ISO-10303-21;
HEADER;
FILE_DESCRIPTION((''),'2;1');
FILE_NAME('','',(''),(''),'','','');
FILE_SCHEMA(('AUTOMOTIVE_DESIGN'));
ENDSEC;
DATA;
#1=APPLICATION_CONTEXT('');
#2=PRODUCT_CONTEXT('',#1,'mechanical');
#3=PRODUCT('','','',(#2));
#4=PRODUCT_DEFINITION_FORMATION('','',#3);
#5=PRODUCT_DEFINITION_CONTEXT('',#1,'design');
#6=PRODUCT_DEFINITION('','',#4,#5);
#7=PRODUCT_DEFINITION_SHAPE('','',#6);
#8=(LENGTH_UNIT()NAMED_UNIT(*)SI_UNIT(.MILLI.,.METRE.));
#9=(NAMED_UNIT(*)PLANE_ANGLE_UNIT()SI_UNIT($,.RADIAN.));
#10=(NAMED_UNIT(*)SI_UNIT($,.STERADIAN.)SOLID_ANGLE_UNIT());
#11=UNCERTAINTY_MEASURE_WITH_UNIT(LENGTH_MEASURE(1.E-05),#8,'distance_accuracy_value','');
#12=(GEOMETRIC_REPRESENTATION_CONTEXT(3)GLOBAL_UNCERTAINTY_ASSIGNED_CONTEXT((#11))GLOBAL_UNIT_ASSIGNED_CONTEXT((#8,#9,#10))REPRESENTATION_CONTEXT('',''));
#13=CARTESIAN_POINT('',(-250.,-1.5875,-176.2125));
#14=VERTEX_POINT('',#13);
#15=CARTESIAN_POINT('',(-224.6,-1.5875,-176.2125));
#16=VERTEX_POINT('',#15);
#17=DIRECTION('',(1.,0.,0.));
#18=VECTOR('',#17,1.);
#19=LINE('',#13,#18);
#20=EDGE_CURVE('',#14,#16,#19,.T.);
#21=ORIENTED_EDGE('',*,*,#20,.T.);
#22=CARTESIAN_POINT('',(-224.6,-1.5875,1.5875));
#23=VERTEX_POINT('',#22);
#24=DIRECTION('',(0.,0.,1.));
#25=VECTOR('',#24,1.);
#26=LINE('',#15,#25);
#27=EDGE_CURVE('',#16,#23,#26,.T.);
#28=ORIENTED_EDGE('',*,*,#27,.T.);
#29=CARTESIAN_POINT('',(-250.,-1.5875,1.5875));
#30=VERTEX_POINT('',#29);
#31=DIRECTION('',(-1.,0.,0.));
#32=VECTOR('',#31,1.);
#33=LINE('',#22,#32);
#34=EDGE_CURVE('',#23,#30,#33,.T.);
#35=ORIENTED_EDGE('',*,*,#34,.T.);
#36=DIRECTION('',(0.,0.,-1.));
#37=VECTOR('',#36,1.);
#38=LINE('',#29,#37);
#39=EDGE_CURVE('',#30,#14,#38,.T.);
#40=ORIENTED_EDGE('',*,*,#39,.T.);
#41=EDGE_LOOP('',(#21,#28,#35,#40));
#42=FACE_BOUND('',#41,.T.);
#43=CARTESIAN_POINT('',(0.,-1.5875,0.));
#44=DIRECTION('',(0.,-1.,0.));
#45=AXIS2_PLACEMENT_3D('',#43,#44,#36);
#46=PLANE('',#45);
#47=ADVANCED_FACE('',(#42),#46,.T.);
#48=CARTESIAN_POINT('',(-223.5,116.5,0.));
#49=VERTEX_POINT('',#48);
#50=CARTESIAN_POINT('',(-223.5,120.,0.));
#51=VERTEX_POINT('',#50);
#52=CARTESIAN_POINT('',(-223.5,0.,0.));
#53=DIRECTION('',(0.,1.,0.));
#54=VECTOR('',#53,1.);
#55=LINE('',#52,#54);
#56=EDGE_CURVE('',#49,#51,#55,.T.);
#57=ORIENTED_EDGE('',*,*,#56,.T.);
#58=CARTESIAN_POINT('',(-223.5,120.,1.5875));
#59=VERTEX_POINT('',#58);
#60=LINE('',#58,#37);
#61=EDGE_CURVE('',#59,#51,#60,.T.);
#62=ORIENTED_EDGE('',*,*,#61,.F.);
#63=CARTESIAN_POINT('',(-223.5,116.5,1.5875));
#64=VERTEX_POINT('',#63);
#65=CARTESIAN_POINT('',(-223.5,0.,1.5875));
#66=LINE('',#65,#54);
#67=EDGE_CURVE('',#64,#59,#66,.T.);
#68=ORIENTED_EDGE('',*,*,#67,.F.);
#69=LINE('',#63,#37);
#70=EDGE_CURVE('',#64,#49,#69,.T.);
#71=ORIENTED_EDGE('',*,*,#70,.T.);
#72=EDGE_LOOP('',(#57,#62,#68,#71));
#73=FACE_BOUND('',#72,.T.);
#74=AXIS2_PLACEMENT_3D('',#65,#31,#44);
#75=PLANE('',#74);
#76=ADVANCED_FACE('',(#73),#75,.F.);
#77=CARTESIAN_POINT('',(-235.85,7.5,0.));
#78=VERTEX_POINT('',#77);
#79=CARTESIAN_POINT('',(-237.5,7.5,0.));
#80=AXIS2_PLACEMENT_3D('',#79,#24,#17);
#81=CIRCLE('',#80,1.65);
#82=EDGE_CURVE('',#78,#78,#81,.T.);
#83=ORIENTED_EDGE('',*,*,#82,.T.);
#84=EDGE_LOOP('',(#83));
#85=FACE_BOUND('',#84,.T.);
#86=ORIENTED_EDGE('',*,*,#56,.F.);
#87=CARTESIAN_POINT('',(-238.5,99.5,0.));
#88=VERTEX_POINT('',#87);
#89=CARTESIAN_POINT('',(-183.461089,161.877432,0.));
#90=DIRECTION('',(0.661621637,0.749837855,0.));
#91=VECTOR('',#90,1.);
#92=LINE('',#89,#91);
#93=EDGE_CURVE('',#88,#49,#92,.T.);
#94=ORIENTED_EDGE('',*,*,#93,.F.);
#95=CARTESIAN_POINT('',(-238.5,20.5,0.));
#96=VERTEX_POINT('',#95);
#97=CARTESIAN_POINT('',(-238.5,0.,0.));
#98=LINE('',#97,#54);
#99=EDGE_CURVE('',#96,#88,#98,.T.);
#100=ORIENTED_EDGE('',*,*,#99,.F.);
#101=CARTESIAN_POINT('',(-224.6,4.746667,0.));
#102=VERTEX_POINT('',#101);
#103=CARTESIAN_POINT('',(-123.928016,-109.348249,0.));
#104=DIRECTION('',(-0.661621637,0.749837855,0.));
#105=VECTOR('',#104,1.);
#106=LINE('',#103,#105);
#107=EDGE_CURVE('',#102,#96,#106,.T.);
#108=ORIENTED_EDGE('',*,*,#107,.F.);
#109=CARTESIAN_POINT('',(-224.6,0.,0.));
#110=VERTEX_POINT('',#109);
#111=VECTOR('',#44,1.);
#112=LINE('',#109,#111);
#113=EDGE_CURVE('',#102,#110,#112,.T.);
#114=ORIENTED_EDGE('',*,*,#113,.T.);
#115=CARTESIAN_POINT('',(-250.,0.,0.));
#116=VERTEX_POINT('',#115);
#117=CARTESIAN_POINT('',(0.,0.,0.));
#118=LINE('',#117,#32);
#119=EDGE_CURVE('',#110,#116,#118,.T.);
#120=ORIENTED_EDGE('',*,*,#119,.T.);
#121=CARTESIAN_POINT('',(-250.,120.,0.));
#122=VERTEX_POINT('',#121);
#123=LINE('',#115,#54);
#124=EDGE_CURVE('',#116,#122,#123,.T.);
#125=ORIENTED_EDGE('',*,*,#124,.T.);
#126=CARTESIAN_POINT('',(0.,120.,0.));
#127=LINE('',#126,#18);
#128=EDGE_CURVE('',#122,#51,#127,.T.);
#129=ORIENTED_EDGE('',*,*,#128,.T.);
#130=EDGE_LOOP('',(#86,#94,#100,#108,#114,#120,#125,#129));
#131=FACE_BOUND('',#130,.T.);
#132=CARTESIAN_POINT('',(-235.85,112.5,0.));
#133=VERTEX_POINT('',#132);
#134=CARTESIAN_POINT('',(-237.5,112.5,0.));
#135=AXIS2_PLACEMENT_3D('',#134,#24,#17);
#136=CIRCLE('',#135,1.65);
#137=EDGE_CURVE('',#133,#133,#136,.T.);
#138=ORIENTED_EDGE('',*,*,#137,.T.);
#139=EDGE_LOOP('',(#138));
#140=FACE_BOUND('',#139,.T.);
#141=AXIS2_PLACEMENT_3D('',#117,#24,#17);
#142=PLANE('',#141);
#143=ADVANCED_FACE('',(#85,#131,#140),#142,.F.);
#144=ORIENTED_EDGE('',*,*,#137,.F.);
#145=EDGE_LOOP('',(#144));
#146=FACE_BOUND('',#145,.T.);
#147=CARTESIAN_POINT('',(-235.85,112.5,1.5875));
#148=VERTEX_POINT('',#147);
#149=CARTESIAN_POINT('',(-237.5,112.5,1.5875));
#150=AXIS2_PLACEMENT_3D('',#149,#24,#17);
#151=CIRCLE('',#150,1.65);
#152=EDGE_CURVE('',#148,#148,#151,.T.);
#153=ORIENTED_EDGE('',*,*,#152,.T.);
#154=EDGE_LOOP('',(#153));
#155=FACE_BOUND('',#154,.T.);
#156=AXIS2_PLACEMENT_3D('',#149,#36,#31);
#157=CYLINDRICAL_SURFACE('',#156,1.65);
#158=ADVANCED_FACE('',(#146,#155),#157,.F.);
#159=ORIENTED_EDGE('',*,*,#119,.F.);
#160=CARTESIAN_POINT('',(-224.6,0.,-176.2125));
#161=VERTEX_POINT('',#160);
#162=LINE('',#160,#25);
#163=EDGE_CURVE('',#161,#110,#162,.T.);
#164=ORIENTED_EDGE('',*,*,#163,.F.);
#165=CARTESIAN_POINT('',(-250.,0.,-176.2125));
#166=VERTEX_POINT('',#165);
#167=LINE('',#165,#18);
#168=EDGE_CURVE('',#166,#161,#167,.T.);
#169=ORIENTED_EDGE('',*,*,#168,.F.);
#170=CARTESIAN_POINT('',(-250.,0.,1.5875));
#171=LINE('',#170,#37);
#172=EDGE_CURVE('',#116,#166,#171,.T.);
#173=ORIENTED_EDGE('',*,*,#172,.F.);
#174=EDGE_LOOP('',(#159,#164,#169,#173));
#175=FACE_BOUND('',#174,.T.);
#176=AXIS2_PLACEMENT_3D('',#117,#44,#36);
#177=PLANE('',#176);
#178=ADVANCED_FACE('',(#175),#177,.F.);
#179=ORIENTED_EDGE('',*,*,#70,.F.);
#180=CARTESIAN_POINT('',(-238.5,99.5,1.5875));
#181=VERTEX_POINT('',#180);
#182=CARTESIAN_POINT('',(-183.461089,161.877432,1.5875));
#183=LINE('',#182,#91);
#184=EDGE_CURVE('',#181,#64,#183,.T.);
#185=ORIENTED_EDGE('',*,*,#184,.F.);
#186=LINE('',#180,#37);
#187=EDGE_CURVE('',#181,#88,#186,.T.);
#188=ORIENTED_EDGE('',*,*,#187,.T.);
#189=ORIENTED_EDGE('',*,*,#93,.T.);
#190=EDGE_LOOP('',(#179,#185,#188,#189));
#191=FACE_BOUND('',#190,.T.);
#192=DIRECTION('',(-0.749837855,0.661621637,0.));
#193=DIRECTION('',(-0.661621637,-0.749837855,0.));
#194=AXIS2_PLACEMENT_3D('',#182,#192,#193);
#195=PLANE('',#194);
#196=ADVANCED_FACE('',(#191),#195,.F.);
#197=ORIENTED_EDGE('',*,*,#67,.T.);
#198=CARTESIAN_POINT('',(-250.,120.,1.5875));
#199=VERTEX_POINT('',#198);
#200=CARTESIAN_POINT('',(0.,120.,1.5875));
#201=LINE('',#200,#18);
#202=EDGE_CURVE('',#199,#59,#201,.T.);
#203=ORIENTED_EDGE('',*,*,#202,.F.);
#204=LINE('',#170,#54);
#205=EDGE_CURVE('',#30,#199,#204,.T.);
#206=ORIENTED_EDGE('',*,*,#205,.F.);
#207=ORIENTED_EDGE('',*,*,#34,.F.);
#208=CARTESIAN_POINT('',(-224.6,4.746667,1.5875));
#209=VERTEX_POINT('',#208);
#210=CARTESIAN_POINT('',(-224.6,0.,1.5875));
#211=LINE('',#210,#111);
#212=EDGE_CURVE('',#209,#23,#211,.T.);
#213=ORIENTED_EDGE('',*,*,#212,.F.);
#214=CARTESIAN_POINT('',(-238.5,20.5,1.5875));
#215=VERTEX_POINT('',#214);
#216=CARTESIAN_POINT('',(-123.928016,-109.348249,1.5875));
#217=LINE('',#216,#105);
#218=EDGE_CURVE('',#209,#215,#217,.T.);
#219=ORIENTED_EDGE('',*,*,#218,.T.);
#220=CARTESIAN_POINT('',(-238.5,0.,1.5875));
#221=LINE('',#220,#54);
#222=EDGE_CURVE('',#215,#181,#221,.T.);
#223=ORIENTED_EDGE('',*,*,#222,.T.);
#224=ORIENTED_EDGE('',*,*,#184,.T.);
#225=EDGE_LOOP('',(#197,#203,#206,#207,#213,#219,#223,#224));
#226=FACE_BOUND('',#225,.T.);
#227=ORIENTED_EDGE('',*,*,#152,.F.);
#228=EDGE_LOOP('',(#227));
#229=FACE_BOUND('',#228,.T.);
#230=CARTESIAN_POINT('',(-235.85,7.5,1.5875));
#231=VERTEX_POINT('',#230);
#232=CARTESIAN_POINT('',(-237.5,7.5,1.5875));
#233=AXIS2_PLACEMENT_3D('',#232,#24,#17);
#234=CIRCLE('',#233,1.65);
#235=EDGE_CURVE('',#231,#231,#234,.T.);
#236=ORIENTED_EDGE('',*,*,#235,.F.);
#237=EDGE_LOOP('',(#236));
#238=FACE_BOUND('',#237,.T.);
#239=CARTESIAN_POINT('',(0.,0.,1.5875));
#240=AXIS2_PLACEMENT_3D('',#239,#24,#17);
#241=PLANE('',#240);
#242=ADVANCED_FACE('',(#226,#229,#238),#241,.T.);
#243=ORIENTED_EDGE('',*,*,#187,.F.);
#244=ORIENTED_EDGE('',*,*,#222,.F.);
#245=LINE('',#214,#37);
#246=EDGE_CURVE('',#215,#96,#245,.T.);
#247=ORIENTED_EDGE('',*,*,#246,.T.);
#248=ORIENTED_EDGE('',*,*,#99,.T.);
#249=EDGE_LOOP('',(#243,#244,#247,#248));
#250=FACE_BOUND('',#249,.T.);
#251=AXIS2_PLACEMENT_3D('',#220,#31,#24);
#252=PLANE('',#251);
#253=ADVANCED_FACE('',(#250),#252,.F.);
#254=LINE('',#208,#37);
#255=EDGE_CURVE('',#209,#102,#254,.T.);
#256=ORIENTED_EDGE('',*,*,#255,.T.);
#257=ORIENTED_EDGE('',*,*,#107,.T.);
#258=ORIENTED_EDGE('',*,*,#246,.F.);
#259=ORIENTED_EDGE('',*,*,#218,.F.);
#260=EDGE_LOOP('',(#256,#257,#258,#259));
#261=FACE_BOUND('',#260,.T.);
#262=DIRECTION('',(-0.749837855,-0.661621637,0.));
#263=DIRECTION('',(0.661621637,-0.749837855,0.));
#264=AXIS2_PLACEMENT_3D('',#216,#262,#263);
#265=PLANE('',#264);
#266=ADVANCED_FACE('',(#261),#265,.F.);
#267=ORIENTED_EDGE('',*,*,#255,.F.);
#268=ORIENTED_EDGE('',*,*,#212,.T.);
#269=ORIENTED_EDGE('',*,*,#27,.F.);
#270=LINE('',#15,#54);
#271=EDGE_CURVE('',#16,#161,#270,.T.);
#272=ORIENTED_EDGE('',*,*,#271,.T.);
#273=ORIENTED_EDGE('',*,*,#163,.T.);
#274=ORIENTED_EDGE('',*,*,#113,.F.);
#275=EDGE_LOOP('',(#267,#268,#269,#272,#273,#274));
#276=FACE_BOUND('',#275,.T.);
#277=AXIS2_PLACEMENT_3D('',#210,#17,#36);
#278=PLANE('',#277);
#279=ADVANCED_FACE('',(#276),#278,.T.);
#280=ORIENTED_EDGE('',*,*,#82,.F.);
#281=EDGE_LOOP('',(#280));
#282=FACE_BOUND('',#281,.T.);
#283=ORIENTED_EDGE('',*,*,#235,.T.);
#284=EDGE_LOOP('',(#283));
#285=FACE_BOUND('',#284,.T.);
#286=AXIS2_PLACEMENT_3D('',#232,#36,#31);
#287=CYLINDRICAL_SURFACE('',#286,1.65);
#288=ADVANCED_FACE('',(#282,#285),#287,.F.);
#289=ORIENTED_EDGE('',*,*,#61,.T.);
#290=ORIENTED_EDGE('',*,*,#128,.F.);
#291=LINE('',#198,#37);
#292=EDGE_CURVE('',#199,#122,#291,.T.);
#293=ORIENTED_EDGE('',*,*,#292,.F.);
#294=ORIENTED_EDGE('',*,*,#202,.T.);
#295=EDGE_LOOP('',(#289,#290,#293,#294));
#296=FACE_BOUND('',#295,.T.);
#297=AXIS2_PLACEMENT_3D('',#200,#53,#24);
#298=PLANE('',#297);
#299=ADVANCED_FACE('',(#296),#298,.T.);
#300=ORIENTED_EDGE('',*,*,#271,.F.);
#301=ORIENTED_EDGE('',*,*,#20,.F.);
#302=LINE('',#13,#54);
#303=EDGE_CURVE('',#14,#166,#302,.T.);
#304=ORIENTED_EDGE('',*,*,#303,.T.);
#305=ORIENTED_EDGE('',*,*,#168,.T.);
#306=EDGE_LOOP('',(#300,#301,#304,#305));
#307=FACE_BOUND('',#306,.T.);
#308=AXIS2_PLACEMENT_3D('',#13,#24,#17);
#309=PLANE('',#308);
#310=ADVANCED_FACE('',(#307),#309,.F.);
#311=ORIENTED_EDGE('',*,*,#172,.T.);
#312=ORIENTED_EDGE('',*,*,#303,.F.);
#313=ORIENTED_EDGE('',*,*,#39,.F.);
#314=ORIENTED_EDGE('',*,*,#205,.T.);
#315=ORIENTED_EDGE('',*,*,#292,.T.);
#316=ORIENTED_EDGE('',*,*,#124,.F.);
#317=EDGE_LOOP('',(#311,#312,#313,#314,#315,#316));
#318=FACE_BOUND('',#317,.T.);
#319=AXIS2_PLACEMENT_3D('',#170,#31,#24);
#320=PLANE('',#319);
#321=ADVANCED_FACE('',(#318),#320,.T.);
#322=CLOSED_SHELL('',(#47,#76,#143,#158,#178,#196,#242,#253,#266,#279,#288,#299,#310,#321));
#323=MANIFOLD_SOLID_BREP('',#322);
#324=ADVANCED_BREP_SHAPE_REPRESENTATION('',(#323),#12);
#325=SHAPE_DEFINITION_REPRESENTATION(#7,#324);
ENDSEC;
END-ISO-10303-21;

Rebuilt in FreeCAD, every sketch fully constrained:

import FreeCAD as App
import Part
import Sketcher
Q = App.Units.Quantity

doc = App.newDocument("Part")
body = doc.addObject("PartDesign::Body", "Body")

# Sketch on XY plane
sketch1 = body.newObject("Sketcher::SketchObject", "Sketch")
sketch1.AttachmentSupport = (doc.getObject("XY_Plane"), [""])
sketch1.MapMode = "FlatFace"
sketch1.addGeometry(Part.LineSegment(App.Vector(-223.5, 120, 0), App.Vector(-250, 120, 0)), False)
sketch1.addGeometry(Part.LineSegment(App.Vector(-250, 120, 0), App.Vector(-250, 0, 0)), False)
sketch1.addGeometry(Part.LineSegment(App.Vector(-250, 0, 0), App.Vector(-224.6, 0, 0)), False)
sketch1.addGeometry(Part.LineSegment(App.Vector(-224.6, 0, 0), App.Vector(-224.6, 4.7, 0)), False)
sketch1.addGeometry(Part.LineSegment(App.Vector(-224.6, 4.7, 0), App.Vector(-238.5, 20.5, 0)), False)
sketch1.addGeometry(Part.LineSegment(App.Vector(-238.5, 20.5, 0), App.Vector(-238.5, 99.5, 0)), False)
sketch1.addGeometry(Part.LineSegment(App.Vector(-238.5, 99.5, 0), App.Vector(-223.5, 116.5, 0)), False)
sketch1.addGeometry(Part.LineSegment(App.Vector(-223.5, 116.5, 0), App.Vector(-223.5, 120, 0)), False)
sketch1.addGeometry(Part.Circle(App.Vector(-237.5, 7.5, 0), App.Vector(0, 0, 1), 1.6), False)
sketch1.addGeometry(Part.Circle(App.Vector(-237.5, 112.5, 0), App.Vector(0, 0, 1), 1.6), False)
sketch1.addConstraint(Sketcher.Constraint("Coincident", 0, 2, 1, 1))
sketch1.addConstraint(Sketcher.Constraint("Coincident", 1, 2, 2, 1))
sketch1.addConstraint(Sketcher.Constraint("Coincident", 2, 2, 3, 1))
sketch1.addConstraint(Sketcher.Constraint("Coincident", 3, 2, 4, 1))
sketch1.addConstraint(Sketcher.Constraint("Coincident", 4, 2, 5, 1))
sketch1.addConstraint(Sketcher.Constraint("Coincident", 5, 2, 6, 1))
sketch1.addConstraint(Sketcher.Constraint("Coincident", 6, 2, 7, 1))
sketch1.addConstraint(Sketcher.Constraint("Coincident", 7, 2, 0, 1))
sketch1.addConstraint(Sketcher.Constraint("Horizontal", 0))
sketch1.addConstraint(Sketcher.Constraint("Vertical", 1))
sketch1.addConstraint(Sketcher.Constraint("Horizontal", 2))
sketch1.addConstraint(Sketcher.Constraint("Vertical", 3))
sketch1.addConstraint(Sketcher.Constraint("Vertical", 5))
sketch1.addConstraint(Sketcher.Constraint("Vertical", 7))
sketch1.addConstraint(Sketcher.Constraint("Equal", 8, 9))
sketch1.addConstraint(Sketcher.Constraint("PointOnObject", 1, 2, -1))
sketch1.addConstraint(Sketcher.Constraint("Vertical", 8, 3, 9, 3))
sketch1.addConstraint(Sketcher.Constraint("Diameter", 8, Q("3.3 mm")))
sketch1.addConstraint(Sketcher.Constraint("DistanceY", 1, 2, 1, 1, Q("120 mm")))
sketch1.addConstraint(Sketcher.Constraint("DistanceY", 5, 1, 5, 2, Q("79 mm")))
sketch1.addConstraint(Sketcher.Constraint("DistanceX", 0, 2, 0, 1, Q("26.5 mm")))
sketch1.addConstraint(Sketcher.Constraint("DistanceX", 2, 1, 2, 2, Q("25.4 mm")))
sketch1.addConstraint(Sketcher.Constraint("DistanceY", 7, 1, 7, 2, Q("3.5 mm")))
sketch1.addConstraint(Sketcher.Constraint("DistanceX", 0, 2, -1, 1, Q("250 mm")))
sketch1.addConstraint(Sketcher.Constraint("DistanceY", 8, 3, 9, 3, Q("105 mm")))
sketch1.addConstraint(Sketcher.Constraint("DistanceX", 4, 2, 8, 3, Q("1 mm")))
sketch1.addConstraint(Sketcher.Constraint("DistanceY", 8, 3, 4, 2, Q("13 mm")))
sketch1.addConstraint(Sketcher.Constraint("DistanceX", 9, 3, 6, 2, Q("14 mm")))
sketch1.addConstraint(Sketcher.Constraint("DistanceY", 9, 3, 6, 2, Q("4 mm")))
sketch1.addConstraint(Sketcher.Constraint("DistanceY", 3, 1, 3, 2, Q("4.746667 mm")))
pad1 = body.newObject("PartDesign::Pad", "Pad")
pad1.Profile = sketch1
pad1.Length = 1.5875

# Sketch on XZ plane
sketch2 = body.newObject("Sketcher::SketchObject", "Sketch001")
sketch2.AttachmentSupport = (doc.getObject("XZ_Plane"), [""])
sketch2.MapMode = "FlatFace"
sketch2.addGeometry(Part.LineSegment(App.Vector(-250, -176, 0), App.Vector(-250, 2, 0)), False)
sketch2.addGeometry(Part.LineSegment(App.Vector(-250, 2, 0), App.Vector(-225, 2, 0)), False)
sketch2.addGeometry(Part.LineSegment(App.Vector(-225, 2, 0), App.Vector(-225, -176, 0)), False)
sketch2.addGeometry(Part.LineSegment(App.Vector(-225, -176, 0), App.Vector(-250, -176, 0)), False)
sketch2.addConstraint(Sketcher.Constraint("Coincident", 0, 2, 1, 1))
sketch2.addConstraint(Sketcher.Constraint("Coincident", 1, 2, 2, 1))
sketch2.addConstraint(Sketcher.Constraint("Coincident", 2, 2, 3, 1))
sketch2.addConstraint(Sketcher.Constraint("Coincident", 3, 2, 0, 1))
sketch2.addConstraint(Sketcher.Constraint("Vertical", 0))
sketch2.addConstraint(Sketcher.Constraint("Horizontal", 1))
sketch2.addConstraint(Sketcher.Constraint("Vertical", 2))
sketch2.addConstraint(Sketcher.Constraint("Horizontal", 3))
sketch2.addConstraint(Sketcher.Constraint("DistanceX", 1, 1, 1, 2, Q("25.4 mm")))
sketch2.addConstraint(Sketcher.Constraint("DistanceY", 0, 1, 0, 2, Q("177.8 mm")))
sketch2.addConstraint(Sketcher.Constraint("DistanceX", 0, 2, -1, 1, Q("250 mm")))
sketch2.addConstraint(Sketcher.Constraint("DistanceY", -1, 1, 0, 2, Q("1.5875 mm")))
pad2 = body.newObject("PartDesign::Pad", "Pad001")
pad2.Profile = sketch2
pad2.Length = 1.5875

doc.recompute()
